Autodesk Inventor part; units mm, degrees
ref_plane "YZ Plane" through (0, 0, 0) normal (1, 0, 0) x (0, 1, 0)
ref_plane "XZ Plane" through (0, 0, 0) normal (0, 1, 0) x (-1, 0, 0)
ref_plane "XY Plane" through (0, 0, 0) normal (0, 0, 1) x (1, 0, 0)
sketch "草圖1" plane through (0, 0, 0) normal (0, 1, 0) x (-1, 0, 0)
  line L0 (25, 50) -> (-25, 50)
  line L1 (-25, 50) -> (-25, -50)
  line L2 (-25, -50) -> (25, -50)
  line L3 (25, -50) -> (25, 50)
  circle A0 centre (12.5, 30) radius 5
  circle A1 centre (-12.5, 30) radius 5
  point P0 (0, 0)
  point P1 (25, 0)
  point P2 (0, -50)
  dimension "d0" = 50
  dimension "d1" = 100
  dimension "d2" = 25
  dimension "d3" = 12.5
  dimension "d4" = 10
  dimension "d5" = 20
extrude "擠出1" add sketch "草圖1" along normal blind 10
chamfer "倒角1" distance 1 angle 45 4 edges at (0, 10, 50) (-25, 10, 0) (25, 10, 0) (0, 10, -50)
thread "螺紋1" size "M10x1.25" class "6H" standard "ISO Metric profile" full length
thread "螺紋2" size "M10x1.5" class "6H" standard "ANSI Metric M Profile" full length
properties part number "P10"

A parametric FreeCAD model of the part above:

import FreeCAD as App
import Part
import Sketcher
from FreeCAD import Vector
Q = App.Units.Quantity


def edges_at(feature, points):
    """Names of the edges that pass closest to the given points."""
    edges = feature.Shape.Edges
    near = lambda p: min(range(len(edges)), key=lambda i: edges[i].distToShape(Part.Vertex(*p))[0])
    return sorted({f"Edge{near(p) + 1}" for p in points})

doc = App.newDocument("Part")
params = doc.addObject("Spreadsheet::Sheet", "Params")
for row, (alias, value) in enumerate([
    ("sketch1_diameter", "10 mm"),
    ("sketch1_width", "50 mm"),
    ("sketch1_height", "100 mm"),
    ("pad1_length", "10 mm"),
    ("chamfer_size", "1 mm"),
], start=1):
    params.set(f"A{row}", alias)
    params.set(f"B{row}", "=" + value)
    params.setAlias(f"B{row}", alias)

body = doc.addObject("PartDesign::Body", "Body")

sketch1 = body.newObject("Sketcher::SketchObject", "Sketch")
sketch1.AttachmentSupport = (doc.getObject("XZ_Plane"), [""])
sketch1.MapMode = "FlatFace"
sketch1.addGeometry(Part.LineSegment(Vector(-25, -50, 0), Vector(-25, 50, 0)), False)
sketch1.addGeometry(Part.LineSegment(Vector(-25, 50, 0), Vector(25, 50, 0)), False)
sketch1.addGeometry(Part.LineSegment(Vector(25, 50, 0), Vector(25, -50, 0)), False)
sketch1.addGeometry(Part.LineSegment(Vector(25, -50, 0), Vector(-25, -50, 0)), False)
sketch1.addGeometry(Part.Circle(Vector(12, 30, 0), Vector(0, 0, 1), 5), False)
sketch1.addGeometry(Part.Circle(Vector(-12, 30, 0), Vector(0, 0, 1), 5), False)
sketch1.addConstraint(Sketcher.Constraint("Coincident", 0, 2, 1, 1))
sketch1.addConstraint(Sketcher.Constraint("Coincident", 1, 2, 2, 1))
sketch1.addConstraint(Sketcher.Constraint("Coincident", 2, 2, 3, 1))
sketch1.addConstraint(Sketcher.Constraint("Coincident", 3, 2, 0, 1))
sketch1.addConstraint(Sketcher.Constraint("Vertical", 0))
sketch1.addConstraint(Sketcher.Constraint("Horizontal", 1))
sketch1.addConstraint(Sketcher.Constraint("Vertical", 2))
sketch1.addConstraint(Sketcher.Constraint("Horizontal", 3))
sketch1.addConstraint(Sketcher.Constraint("Equal", 4, 5))
sketch1.addConstraint(Sketcher.Constraint("Symmetric", 0, 2, 2, 2, -1, 1))
sketch1.addConstraint(Sketcher.Constraint("Symmetric", 4, 3, 5, 3, -2))
sketch1.addConstraint(Sketcher.Constraint("Diameter", 4, Q("10 mm")))
sketch1.addConstraint(Sketcher.Constraint("DistanceX", 1, 1, 1, 2, Q("50 mm")))
sketch1.addConstraint(Sketcher.Constraint("DistanceY", 0, 1, 0, 2, Q("100 mm")))
sketch1.addConstraint(Sketcher.Constraint("DistanceX", 5, 3, 4, 3, Q("25 mm")))
sketch1.addConstraint(Sketcher.Constraint("DistanceY", 5, 3, 0, 2, Q("20 mm")))
sketch1.setExpression("Constraints[11]", "Params.sketch1_diameter")
sketch1.setExpression("Constraints[12]", "Params.sketch1_width")
sketch1.setExpression("Constraints[13]", "Params.sketch1_height")
pad1 = body.newObject("PartDesign::Pad", "Pad")
pad1.Profile = sketch1
pad1.setExpression("Length", "Params.pad1_length")
pad1.Reversed = True
doc.recompute()

chamfer = body.newObject("PartDesign::Chamfer", "Chamfer")
chamfer.Base = (pad1, edges_at(pad1, [
    (0, 10, 50),
    (-25, 10, 0),
    (25, 10, 0),
    (0, 10, -50),
]))
chamfer.setExpression("Size", "Params.chamfer_size")

doc.recompute()
